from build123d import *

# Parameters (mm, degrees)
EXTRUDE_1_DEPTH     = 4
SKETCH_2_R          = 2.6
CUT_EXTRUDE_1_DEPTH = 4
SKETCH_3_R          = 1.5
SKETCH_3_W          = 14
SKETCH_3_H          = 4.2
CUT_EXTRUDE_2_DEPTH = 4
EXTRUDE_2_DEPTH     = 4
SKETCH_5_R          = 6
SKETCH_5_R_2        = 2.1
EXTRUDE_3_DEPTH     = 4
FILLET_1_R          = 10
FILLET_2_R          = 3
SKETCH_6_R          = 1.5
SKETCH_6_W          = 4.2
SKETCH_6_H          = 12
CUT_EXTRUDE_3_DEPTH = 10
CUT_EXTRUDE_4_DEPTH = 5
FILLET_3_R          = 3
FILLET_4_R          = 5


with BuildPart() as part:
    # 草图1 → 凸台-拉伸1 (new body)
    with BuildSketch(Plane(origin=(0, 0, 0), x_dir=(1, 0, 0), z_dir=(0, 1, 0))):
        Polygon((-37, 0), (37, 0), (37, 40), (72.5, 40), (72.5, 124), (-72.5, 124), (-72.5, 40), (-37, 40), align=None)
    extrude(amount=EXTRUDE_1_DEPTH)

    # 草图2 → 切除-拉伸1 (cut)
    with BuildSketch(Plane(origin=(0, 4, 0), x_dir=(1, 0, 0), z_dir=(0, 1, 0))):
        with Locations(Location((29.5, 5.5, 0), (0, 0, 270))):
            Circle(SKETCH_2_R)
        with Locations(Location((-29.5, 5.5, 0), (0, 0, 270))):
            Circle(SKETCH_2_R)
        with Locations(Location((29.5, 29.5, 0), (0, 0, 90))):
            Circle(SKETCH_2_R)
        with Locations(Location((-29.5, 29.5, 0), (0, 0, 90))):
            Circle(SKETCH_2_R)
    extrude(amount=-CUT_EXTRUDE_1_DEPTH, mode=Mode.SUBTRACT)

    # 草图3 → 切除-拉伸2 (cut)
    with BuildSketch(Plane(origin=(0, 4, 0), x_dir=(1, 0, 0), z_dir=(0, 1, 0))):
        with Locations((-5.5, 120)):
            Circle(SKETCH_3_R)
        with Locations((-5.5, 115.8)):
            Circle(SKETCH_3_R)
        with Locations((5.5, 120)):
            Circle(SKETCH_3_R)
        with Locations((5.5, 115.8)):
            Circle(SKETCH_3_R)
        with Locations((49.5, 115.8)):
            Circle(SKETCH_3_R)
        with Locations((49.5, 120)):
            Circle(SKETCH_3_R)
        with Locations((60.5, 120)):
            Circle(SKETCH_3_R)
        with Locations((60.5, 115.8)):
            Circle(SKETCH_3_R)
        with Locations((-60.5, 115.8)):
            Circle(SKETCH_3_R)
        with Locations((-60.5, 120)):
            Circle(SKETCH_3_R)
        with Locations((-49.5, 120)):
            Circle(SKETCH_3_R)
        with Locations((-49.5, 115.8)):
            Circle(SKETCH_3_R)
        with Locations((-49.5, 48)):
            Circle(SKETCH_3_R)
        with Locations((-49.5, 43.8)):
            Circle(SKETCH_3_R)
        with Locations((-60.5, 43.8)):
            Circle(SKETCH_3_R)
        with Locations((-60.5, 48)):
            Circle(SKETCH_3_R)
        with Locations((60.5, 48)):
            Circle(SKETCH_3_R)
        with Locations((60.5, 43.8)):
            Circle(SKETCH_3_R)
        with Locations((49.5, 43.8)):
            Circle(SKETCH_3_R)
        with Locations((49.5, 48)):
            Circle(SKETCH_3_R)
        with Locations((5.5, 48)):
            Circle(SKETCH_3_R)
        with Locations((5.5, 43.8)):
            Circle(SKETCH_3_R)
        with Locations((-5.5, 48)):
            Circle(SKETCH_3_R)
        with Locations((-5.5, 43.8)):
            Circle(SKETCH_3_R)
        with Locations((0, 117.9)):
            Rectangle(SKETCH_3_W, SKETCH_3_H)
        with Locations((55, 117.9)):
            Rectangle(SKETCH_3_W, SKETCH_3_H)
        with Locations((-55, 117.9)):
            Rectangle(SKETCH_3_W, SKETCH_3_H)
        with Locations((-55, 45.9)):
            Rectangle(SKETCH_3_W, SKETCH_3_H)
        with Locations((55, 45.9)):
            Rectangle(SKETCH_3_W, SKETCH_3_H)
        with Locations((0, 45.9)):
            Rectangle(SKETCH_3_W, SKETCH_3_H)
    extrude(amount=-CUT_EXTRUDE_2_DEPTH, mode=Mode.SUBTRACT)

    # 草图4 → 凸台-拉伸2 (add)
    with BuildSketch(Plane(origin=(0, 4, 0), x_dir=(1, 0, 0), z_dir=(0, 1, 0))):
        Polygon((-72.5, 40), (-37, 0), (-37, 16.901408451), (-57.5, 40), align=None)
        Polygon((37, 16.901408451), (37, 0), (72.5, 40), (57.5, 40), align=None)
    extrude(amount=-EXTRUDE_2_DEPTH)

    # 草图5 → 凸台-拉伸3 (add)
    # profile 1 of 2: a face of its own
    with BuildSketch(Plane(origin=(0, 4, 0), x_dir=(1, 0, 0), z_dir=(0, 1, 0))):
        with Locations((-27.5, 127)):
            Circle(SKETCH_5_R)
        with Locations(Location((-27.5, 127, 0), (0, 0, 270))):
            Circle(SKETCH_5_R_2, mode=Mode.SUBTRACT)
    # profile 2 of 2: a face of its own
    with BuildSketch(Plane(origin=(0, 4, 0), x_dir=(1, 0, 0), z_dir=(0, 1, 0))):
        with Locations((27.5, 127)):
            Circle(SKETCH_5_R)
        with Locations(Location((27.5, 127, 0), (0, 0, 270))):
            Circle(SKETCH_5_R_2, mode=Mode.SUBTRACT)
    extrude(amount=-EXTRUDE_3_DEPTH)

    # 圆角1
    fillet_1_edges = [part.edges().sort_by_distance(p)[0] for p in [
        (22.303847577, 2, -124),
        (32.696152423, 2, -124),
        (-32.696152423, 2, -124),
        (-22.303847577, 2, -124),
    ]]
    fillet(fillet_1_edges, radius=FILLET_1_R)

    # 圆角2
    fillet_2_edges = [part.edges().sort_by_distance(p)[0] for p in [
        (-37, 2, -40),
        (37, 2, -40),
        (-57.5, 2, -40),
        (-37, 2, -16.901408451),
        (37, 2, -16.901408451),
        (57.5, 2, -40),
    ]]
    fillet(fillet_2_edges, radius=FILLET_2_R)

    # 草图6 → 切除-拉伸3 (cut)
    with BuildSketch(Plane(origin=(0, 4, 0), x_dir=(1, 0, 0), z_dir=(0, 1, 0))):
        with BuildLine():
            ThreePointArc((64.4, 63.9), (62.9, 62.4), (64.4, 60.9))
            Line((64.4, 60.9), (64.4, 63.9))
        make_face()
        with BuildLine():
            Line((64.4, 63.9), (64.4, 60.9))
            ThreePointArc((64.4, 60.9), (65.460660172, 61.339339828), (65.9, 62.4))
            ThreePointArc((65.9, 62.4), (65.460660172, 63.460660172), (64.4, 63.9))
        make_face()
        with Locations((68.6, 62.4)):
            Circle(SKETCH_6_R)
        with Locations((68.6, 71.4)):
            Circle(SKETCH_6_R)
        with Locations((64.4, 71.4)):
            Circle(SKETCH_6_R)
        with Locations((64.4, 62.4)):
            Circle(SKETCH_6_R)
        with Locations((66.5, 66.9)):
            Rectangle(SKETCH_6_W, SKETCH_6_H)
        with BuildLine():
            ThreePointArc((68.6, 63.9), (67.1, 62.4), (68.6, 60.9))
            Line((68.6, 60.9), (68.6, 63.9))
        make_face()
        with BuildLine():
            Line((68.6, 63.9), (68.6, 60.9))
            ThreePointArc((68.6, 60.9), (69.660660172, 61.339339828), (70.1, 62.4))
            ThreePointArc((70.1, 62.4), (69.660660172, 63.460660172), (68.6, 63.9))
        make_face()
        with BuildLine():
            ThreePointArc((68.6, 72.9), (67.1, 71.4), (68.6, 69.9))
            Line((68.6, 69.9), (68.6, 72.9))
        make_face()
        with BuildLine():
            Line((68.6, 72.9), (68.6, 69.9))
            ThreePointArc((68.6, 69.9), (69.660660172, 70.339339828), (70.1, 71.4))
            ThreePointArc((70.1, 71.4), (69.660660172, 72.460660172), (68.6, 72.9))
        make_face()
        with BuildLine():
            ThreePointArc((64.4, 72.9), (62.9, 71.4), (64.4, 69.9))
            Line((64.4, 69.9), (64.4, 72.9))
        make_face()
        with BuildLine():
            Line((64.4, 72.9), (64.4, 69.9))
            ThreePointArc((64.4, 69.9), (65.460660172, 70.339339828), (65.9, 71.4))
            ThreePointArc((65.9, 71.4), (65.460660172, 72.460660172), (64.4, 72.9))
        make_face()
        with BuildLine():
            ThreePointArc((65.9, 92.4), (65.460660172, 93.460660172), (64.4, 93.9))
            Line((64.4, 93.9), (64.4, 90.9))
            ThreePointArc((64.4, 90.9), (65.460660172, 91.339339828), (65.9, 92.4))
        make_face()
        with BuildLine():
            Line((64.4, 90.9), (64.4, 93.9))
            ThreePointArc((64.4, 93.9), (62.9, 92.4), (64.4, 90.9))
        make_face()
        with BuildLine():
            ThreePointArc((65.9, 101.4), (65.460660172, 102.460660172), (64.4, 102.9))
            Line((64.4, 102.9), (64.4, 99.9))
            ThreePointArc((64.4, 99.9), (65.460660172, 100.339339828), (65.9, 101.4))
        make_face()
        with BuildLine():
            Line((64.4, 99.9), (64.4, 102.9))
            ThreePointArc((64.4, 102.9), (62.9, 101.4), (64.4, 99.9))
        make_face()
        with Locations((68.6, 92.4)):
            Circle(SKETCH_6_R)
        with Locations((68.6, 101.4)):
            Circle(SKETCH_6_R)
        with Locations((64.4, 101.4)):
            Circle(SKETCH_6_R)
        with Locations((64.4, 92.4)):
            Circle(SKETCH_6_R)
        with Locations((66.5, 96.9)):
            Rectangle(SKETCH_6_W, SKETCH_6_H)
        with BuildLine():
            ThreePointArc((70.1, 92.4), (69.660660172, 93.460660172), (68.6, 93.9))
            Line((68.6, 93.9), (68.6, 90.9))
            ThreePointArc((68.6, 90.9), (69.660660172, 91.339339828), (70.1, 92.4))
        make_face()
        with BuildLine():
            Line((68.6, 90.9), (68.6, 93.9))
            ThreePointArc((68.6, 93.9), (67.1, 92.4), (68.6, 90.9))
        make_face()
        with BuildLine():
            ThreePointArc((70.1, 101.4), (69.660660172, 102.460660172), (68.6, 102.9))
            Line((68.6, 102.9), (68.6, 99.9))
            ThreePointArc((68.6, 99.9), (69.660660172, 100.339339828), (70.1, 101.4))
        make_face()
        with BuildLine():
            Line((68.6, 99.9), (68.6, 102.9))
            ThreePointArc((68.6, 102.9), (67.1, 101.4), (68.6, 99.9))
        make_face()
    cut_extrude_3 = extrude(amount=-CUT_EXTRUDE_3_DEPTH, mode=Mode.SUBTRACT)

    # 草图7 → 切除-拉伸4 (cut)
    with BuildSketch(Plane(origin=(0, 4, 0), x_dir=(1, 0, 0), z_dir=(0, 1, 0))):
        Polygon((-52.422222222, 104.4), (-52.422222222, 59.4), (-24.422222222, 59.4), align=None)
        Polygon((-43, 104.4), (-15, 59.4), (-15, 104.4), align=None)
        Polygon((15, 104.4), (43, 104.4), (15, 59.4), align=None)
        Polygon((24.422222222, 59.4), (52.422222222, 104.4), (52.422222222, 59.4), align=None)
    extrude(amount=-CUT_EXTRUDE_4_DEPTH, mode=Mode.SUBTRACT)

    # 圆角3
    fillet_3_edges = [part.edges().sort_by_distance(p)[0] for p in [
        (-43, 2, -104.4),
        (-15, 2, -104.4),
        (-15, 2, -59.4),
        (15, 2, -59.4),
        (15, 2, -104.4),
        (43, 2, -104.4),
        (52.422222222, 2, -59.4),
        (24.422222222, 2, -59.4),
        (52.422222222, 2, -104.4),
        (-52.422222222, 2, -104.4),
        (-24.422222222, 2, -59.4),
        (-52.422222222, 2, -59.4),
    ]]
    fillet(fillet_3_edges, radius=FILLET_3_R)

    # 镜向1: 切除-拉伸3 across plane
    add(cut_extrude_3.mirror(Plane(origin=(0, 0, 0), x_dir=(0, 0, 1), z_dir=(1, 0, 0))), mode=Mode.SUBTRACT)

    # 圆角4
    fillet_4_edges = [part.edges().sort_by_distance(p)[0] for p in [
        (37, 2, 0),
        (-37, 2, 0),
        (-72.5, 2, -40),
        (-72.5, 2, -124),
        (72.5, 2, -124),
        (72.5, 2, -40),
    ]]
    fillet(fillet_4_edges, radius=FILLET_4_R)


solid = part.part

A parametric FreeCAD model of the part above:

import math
import FreeCAD as App
import Part
import Sketcher
from FreeCAD import Vector


def edges_at(feature, points):
    """Names of the edges that pass closest to the given points."""
    edges = feature.Shape.Edges
    near = lambda p: min(range(len(edges)), key=lambda i: edges[i].distToShape(Part.Vertex(*p))[0])
    return sorted({f"Edge{near(p) + 1}" for p in points})


def add_polygon(sketch, points):
    """Adds a closed chain of lines whose ends are joined by coincident constraints."""
    first, n = sketch.GeometryCount, len(points)
    for a, b in zip(points, points[1:] + points[:1]):
        sketch.addGeometry(Part.LineSegment(App.Vector(*a, 0), App.Vector(*b, 0)), False)
    for i in range(n):
        sketch.addConstraint(Sketcher.Constraint("Coincident", first + i, 2, first + (i + 1) % n, 1))

doc = App.newDocument("Part")
body = doc.addObject("PartDesign::Body", "Body")

sketch1 = body.newObject("Sketcher::SketchObject", "Sketch")
sketch1.AttachmentSupport = (doc.getObject("XZ_Plane"), [""])
sketch1.MapMode = "FlatFace"
add_polygon(sketch1, [(-37, 0), (37, 0), (37, -40), (72, -40), (72, -124), (-72, -124), (-72, -40), (-37, -40)])
sketch1.addConstraint(Sketcher.Constraint("Horizontal", 0))
sketch1.addConstraint(Sketcher.Constraint("Vertical", 1))
sketch1.addConstraint(Sketcher.Constraint("Horizontal", 2))
sketch1.addConstraint(Sketcher.Constraint("Vertical", 3))
sketch1.addConstraint(Sketcher.Constraint("Horizontal", 4))
sketch1.addConstraint(Sketcher.Constraint("Vertical", 5))
sketch1.addConstraint(Sketcher.Constraint("Horizontal", 6))
sketch1.addConstraint(Sketcher.Constraint("Vertical", 7))
sketch1.addConstraint(Sketcher.Constraint("Symmetric", 0, 2, 7, 2, -1, 1))
sketch1.addConstraint(Sketcher.Constraint("Symmetric", 2, 2, 5, 2, -2))
sketch1.addConstraint(Sketcher.Constraint("DistanceX", 0, 1, 0, 2, 74.0))
sketch1.addConstraint(Sketcher.Constraint("DistanceX", 4, 2, 4, 1, 145.0))
sketch1.addConstraint(Sketcher.Constraint("DistanceY", 1, 2, 1, 1, 40.0))
sketch1.addConstraint(Sketcher.Constraint("DistanceY", 3, 2, 3, 1, 84.0))
pad1 = body.newObject("PartDesign::Pad", "Pad")
pad1.Profile = sketch1
pad1.Length = 4
pad1.Reversed = True

sketch2 = body.newObject("Sketcher::SketchObject", "Sketch001")
sketch2.AttachmentSupport = (doc.getObject("XZ_Plane"), [""])
sketch2.MapMode = "FlatFace"
sketch2.AttachmentOffset = App.Placement(Vector(0, 0, -4), App.Rotation())
sketch2.addGeometry(Part.Circle(Vector(29.5, -5.5, 0), Vector(0, 0, 1), 2.6), False)
sketch2.addGeometry(Part.Circle(Vector(-29.5, -5.5, 0), Vector(0, 0, 1), 2.6), False)
sketch2.addGeometry(Part.Circle(Vector(29.5, -29.5, 0), Vector(0, 0, 1), 2.6), False)
sketch2.addGeometry(Part.Circle(Vector(-29.5, -29.5, 0), Vector(0, 0, 1), 2.6), False)
sketch2.addConstraint(Sketcher.Constraint("Equal", 0, 1))
sketch2.addConstraint(Sketcher.Constraint("Equal", 1, 2))
sketch2.addConstraint(Sketcher.Constraint("Equal", 2, 3))
sketch2.addConstraint(Sketcher.Constraint("Symmetric", 0, 3, 1, 3, -2))
sketch2.addConstraint(Sketcher.Constraint("Symmetric", 2, 3, 3, 3, -2))
sketch2.addConstraint(Sketcher.Constraint("Vertical", 0, 3, 2, 3))
sketch2.addConstraint(Sketcher.Constraint("Diameter", 0, 5.2))
sketch2.addConstraint(Sketcher.Constraint("DistanceX", 1, 3, 0, 3, 59.0))
sketch2.addConstraint(Sketcher.Constraint("DistanceY", 2, 3, 0, 3, 24.0))
sketch2.addConstraint(Sketcher.Constraint("DistanceY", 0, 3, -1, 1, 5.5))
pocket1 = body.newObject("PartDesign::Pocket", "Pocket")
pocket1.Profile = sketch2
pocket1.Length = 4
pocket1.Reversed = True

sketch3 = body.newObject("Sketcher::SketchObject", "Sketch002")
sketch3.AttachmentSupport = (doc.getObject("XZ_Plane"), [""])
sketch3.MapMode = "FlatFace"
sketch3.AttachmentOffset = App.Placement(Vector(0, 0, -4), App.Rotation())
sketch3.addGeometry(Part.ArcOfCircle(Part.Circle(Vector(-5.5, -120, 0), Vector(0, 0, 1), 1.5), math.radians(180), math.radians(360)), False)
sketch3.addGeometry(Part.LineSegment(Vector(-7, -120, 0), Vector(-7, -115.8, 0)), False)
sketch3.addGeometry(Part.ArcOfCircle(Part.Circle(Vector(-5.5, -115.8, 0), Vector(0, 0, 1), 1.5), math.radians(0), math.radians(180)), False)
sketch3.addGeometry(Part.LineSegment(Vector(-4, -115.8, 0), Vector(4, -115.8, 0)), False)
sketch3.addGeometry(Part.ArcOfCircle(Part.Circle(Vector(5.5, -115.8, 0), Vector(0, 0, 1), 1.5), math.radians(0), math.radians(180)), False)
sketch3.addGeometry(Part.LineSegment(Vector(7, -115.8, 0), Vector(7, -120, 0)), False)
sketch3.addGeometry(Part.ArcOfCircle(Part.Circle(Vector(5.5, -120, 0), Vector(0, 0, 1), 1.5), math.radians(180), math.radians(360)), False)
sketch3.addGeometry(Part.LineSegment(Vector(4, -120, 0), Vector(-4, -120, 0)), False)
sketch3.addGeometry(Part.ArcOfCircle(Part.Circle(Vector(49.5, -115.8, 0), Vector(0, 0, 1), 1.5), math.radians(0), math.radians(180)), False)
sketch3.addGeometry(Part.LineSegment(Vector(51, -115.8, 0), Vector(59, -115.8, 0)), False)
sketch3.addGeometry(Part.ArcOfCircle(Part.Circle(Vector(60.5, -115.8, 0), Vector(0, 0, 1), 1.5), math.radians(0), math.radians(180)), False)
sketch3.addGeometry(Part.LineSegment(Vector(62, -115.8, 0), Vector(62, -120, 0)), False)
sketch3.addGeometry(Part.ArcOfCircle(Part.Circle(Vector(60.5, -120, 0), Vector(0, 0, 1), 1.5), math.radians(180), math.radians(360)), False)
sketch3.addGeometry(Part.LineSegment(Vector(59, -120, 0), Vector(51, -120, 0)), False)
sketch3.addGeometry(Part.ArcOfCircle(Part.Circle(Vector(49.5, -120, 0), Vector(0, 0, 1), 1.5), math.radians(180), math.radians(360)), False)
sketch3.addGeometry(Part.LineSegment(Vector(48, -120, 0), Vector(48, -115.8, 0)), False)
sketch3.addGeometry(Part.ArcOfCircle(Part.Circle(Vector(-60.5, -115.8, 0), Vector(0, 0, 1), 1.5), math.radians(0), math.radians(180)), False)
sketch3.addGeometry(Part.LineSegment(Vector(-59, -115.8, 0), Vector(-51, -115.8, 0)), False)
sketch3.addGeometry(Part.ArcOfCircle(Part.Circle(Vector(-49.5, -115.8, 0), Vector(0, 0, 1), 1.5), math.radians(0), math.radians(180)), False)
sketch3.addGeometry(Part.LineSegment(Vector(-48, -115.8, 0), Vector(-48, -120, 0)), False)
sketch3.addGeometry(Part.ArcOfCircle(Part.Circle(Vector(-49.5, -120, 0), Vector(0, 0, 1), 1.5), math.radians(180), math.radians(360)), False)
sketch3.addGeometry(Part.LineSegment(Vector(-51, -120, 0), Vector(-59, -120, 0)), False)
sketch3.addGeometry(Part.ArcOfCircle(Part.Circle(Vector(-60.5, -120, 0), Vector(0, 0, 1), 1.5), math.radians(180), math.radians(360)), False)
sketch3.addGeometry(Part.LineSegment(Vector(-62, -120, 0), Vector(-62, -115.8, 0)), False)
sketch3.addGeometry(Part.ArcOfCircle(Part.Circle(Vector(-49.5, -48, 0), Vector(0, 0, 1), 1.5), math.radians(180), math.radians(360)), False)
sketch3.addGeometry(Part.LineSegment(Vector(-51, -48, 0), Vector(-59, -48, 0)), False)
sketch3.addGeometry(Part.ArcOfCircle(Part.Circle(Vector(-60.5, -48, 0), Vector(0, 0, 1), 1.5), math.radians(180), math.radians(360)), False)
sketch3.addGeometry(Part.LineSegment(Vector(-62, -48, 0), Vector(-62, -43.8, 0)), False)
sketch3.addGeometry(Part.ArcOfCircle(Part.Circle(Vector(-60.5, -43.8, 0), Vector(0, 0, 1), 1.5), math.radians(0), math.radians(180)), False)
sketch3.addGeometry(Part.LineSegment(Vector(-59, -43.8, 0), Vector(-51, -43.8, 0)), False)
sketch3.addGeometry(Part.ArcOfCircle(Part.Circle(Vector(-49.5, -43.8, 0), Vector(0, 0, 1), 1.5), math.radians(0), math.radians(180)), False)
sketch3.addGeometry(Part.LineSegment(Vector(-48, -43.8, 0), Vector(-48, -48, 0)), False)
sketch3.addGeometry(Part.ArcOfCircle(Part.Circle(Vector(60.5, -48, 0), Vector(0, 0, 1), 1.5), math.radians(180), math.radians(360)), False)
sketch3.addGeometry(Part.LineSegment(Vector(59, -48, 0), Vector(51, -48, 0)), False)
sketch3.addGeometry(Part.ArcOfCircle(Part.Circle(Vector(49.5, -48, 0), Vector(0, 0, 1), 1.5), math.radians(180), math.radians(360)), False)
sketch3.addGeometry(Part.LineSegment(Vector(48, -48, 0), Vector(48, -43.8, 0)), False)
sketch3.addGeometry(Part.ArcOfCircle(Part.Circle(Vector(49.5, -43.8, 0), Vector(0, 0, 1), 1.5), math.radians(0), math.radians(180)), False)
sketch3.addGeometry(Part.LineSegment(Vector(51, -43.8, 0), Vector(59, -43.8, 0)), False)
sketch3.addGeometry(Part.ArcOfCircle(Part.Circle(Vector(60.5, -43.8, 0), Vector(0, 0, 1), 1.5), math.radians(0), math.radians(180)), False)
sketch3.addGeometry(Part.LineSegment(Vector(62, -43.8, 0), Vector(62, -48, 0)), False)
sketch3.addGeometry(Part.ArcOfCircle(Part.Circle(Vector(5.5, -48, 0), Vector(0, 0, 1), 1.5), math.radians(180), math.radians(360)), False)
sketch3.addGeometry(Part.LineSegment(Vector(4, -48, 0), Vector(-4, -48, 0)), False)
sketch3.addGeometry(Part.ArcOfCircle(Part.Circle(Vector(-5.5, -48, 0), Vector(0, 0, 1), 1.5), math.radians(180), math.radians(360)), False)
sketch3.addGeometry(Part.LineSegment(Vector(-7, -48, 0), Vector(-7, -43.8, 0)), False)
sketch3.addGeometry(Part.ArcOfCircle(Part.Circle(Vector(-5.5, -43.8, 0), Vector(0, 0, 1), 1.5), math.radians(0), math.radians(180)), False)
sketch3.addGeometry(Part.LineSegment(Vector(-4, -43.8, 0), Vector(4, -43.8, 0)), False)
sketch3.addGeometry(Part.ArcOfCircle(Part.Circle(Vector(5.5, -43.8, 0), Vector(0, 0, 1), 1.5), math.radians(0), math.radians(180)), False)
sketch3.addGeometry(Part.LineSegment(Vector(7, -43.8, 0), Vector(7, -48, 0)), False)
sketch3.addConstraint(Sketcher.Constraint("Tangent", 0, 1, 1, 1))
sketch3.addConstraint(Sketcher.Constraint("Tangent", 1, 2, 2, 2))
sketch3.addConstraint(Sketcher.Constraint("Coincident", 2, 1, 3, 1))
sketch3.addConstraint(Sketcher.Constraint("Coincident", 3, 2, 4, 2))
sketch3.addConstraint(Sketcher.Constraint("Tangent", 4, 1, 5, 1))
sketch3.addConstraint(Sketcher.Constraint("Tangent", 5, 2, 6, 2))
sketch3.addConstraint(Sketcher.Constraint("Coincident", 6, 1, 7, 1))
sketch3.addConstraint(Sketcher.Constraint("Coincident", 7, 2, 0, 2))
sketch3.addConstraint(Sketcher.Constraint("Coincident", 8, 1, 9, 1))
sketch3.addConstraint(Sketcher.Constraint("Coincident", 9, 2, 10, 2))
sketch3.addConstraint(Sketcher.Constraint("Tangent", 10, 1, 11, 1))
sketch3.addConstraint(Sketcher.Constraint("Tangent", 11, 2, 12, 2))
sketch3.addConstraint(Sketcher.Constraint("Coincident", 12, 1, 13, 1))
sketch3.addConstraint(Sketcher.Constraint("Coincident", 13, 2, 14, 2))
sketch3.addConstraint(Sketcher.Constraint("Tangent", 14, 1, 15, 1))
sketch3.addConstraint(Sketcher.Constraint("Tangent", 15, 2, 8, 2))
sketch3.addConstraint(Sketcher.Constraint("Coincident", 16, 1, 17, 1))
sketch3.addConstraint(Sketcher.Constraint("Coincident", 17, 2, 18, 2))
sketch3.addConstraint(Sketcher.Constraint("Tangent", 18, 1, 19, 1))
sketch3.addConstraint(Sketcher.Constraint("Tangent", 19, 2, 20, 2))
sketch3.addConstraint(Sketcher.Constraint("Coincident", 20, 1, 21, 1))
sketch3.addConstraint(Sketcher.Constraint("Coincident", 21, 2, 22, 2))
sketch3.addConstraint(Sketcher.Constraint("Tangent", 22, 1, 23, 1))
sketch3.addConstraint(Sketcher.Constraint("Tangent", 23, 2, 16, 2))
sketch3.addConstraint(Sketcher.Constraint("Coincident", 24, 1, 25, 1))
sketch3.addConstraint(Sketcher.Constraint("Coincident", 25, 2, 26, 2))
sketch3.addConstraint(Sketcher.Constraint("Tangent", 26, 1, 27, 1))
sketch3.addConstraint(Sketcher.Constraint("Tangent", 27, 2, 28, 2))
sketch3.addConstraint(Sketcher.Constraint("Coincident", 28, 1, 29, 1))
sketch3.addConstraint(Sketcher.Constraint("Coincident", 29, 2, 30, 2))
sketch3.addConstraint(Sketcher.Constraint("Tangent", 30, 1, 31, 1))
sketch3.addConstraint(Sketcher.Constraint("Tangent", 31, 2, 24, 2))
sketch3.addConstraint(Sketcher.Constraint("Coincident", 32, 1, 33, 1))
sketch3.addConstraint(Sketcher.Constraint("Coincident", 33, 2, 34, 2))
sketch3.addConstraint(Sketcher.Constraint("Tangent", 34, 1, 35, 1))
sketch3.addConstraint(Sketcher.Constraint("Tangent", 35, 2, 36, 2))
sketch3.addConstraint(Sketcher.Constraint("Coincident", 36, 1, 37, 1))
sketch3.addConstraint(Sketcher.Constraint("Coincident", 37, 2, 38, 2))
sketch3.addConstraint(Sketcher.Constraint("Tangent", 38, 1, 39, 1))
sketch3.addConstraint(Sketcher.Constraint("Tangent", 39, 2, 32, 2))
sketch3.addConstraint(Sketcher.Constraint("Coincident", 40, 1, 41, 1))
sketch3.addConstraint(Sketcher.Constraint("Coincident", 41, 2, 42, 2))
sketch3.addConstraint(Sketcher.Constraint("Tangent", 42, 1, 43, 1))
sketch3.addConstraint(Sketcher.Constraint("Tangent", 43, 2, 44, 2))
sketch3.addConstraint(Sketcher.Constraint("Coincident", 44, 1, 45, 1))
sketch3.addConstraint(Sketcher.Constraint("Coincident", 45, 2, 46, 2))
sketch3.addConstraint(Sketcher.Constraint("Tangent", 46, 1, 47, 1))
sketch3.addConstraint(Sketcher.Constraint("Tangent", 47, 2, 40, 2))
sketch3.addConstraint(Sketcher.Constraint("Vertical", 1))
sketch3.addConstraint(Sketcher.Constraint("Horizontal", 3))
sketch3.addConstraint(Sketcher.Constraint("Vertical", 5))
sketch3.addConstraint(Sketcher.Constraint("Horizontal", 7))
sketch3.addConstraint(Sketcher.Constraint("Horizontal", 9))
sketch3.addConstraint(Sketcher.Constraint("Vertical", 11))
sketch3.addConstraint(Sketcher.Constraint("Horizontal", 13))
sketch3.addConstraint(Sketcher.Constraint("Vertical", 15))
sketch3.addConstraint(Sketcher.Constraint("Horizontal", 17))
sketch3.addConstraint(Sketcher.Constraint("Vertical", 19))
sketch3.addConstraint(Sketcher.Constraint("Horizontal", 21))
sketch3.addConstraint(Sketcher.Constraint("Vertical", 23))
sketch3.addConstraint(Sketcher.Constraint("Horizontal", 25))
sketch3.addConstraint(Sketcher.Constraint("Vertical", 27))
sketch3.addConstraint(Sketcher.Constraint("Horizontal", 29))
sketch3.addConstraint(Sketcher.Constraint("Vertical", 31))
sketch3.addConstraint(Sketcher.Constraint("Horizontal", 33))
sketch3.addConstraint(Sketcher.Constraint("Vertical", 35))
sketch3.addConstraint(Sketcher.Constraint("Horizontal", 37))
sketch3.addConstraint(Sketcher.Constraint("Vertical", 39))
sketch3.addConstraint(Sketcher.Constraint("Horizontal", 41))
sketch3.addConstraint(Sketcher.Constraint("Vertical", 43))
sketch3.addConstraint(Sketcher.Constraint("Horizontal", 45))
sketch3.addConstraint(Sketcher.Constraint("Vertical", 47))
sketch3.addConstraint(Sketcher.Constraint("Equal", 0, 2))
sketch3.addConstraint(Sketcher.Constraint("Equal", 2, 4))
sketch3.addConstraint(Sketcher.Constraint("Equal", 4, 6))
sketch3.addConstraint(Sketcher.Constraint("Equal", 6, 8))
sketch3.addConstraint(Sketcher.Constraint("Equal", 8, 10))
sketch3.addConstraint(Sketcher.Constraint("Equal", 10, 12))
sketch3.addConstraint(Sketcher.Constraint("Equal", 12, 14))
sketch3.addConstraint(Sketcher.Constraint("Equal", 14, 16))
sketch3.addConstraint(Sketcher.Constraint("Equal", 16, 18))
sketch3.addConstraint(Sketcher.Constraint("Equal", 18, 20))
sketch3.addConstraint(Sketcher.Constraint("Equal", 20, 22))
sketch3.addConstraint(Sketcher.Constraint("Equal", 22, 24))
sketch3.addConstraint(Sketcher.Constraint("Equal", 24, 26))
sketch3.addConstraint(Sketcher.Constraint("Equal", 26, 28))
sketch3.addConstraint(Sketcher.Constraint("Equal", 28, 30))
sketch3.addConstraint(Sketcher.Constraint("Equal", 30, 32))
sketch3.addConstraint(Sketcher.Constraint("Equal", 32, 34))
sketch3.addConstraint(Sketcher.Constraint("Equal", 34, 36))
sketch3.addConstraint(Sketcher.Constraint("Equal", 36, 38))
sketch3.addConstraint(Sketcher.Constraint("Equal", 38, 40))
sketch3.addConstraint(Sketcher.Constraint("Equal", 40, 42))
sketch3.addConstraint(Sketcher.Constraint("Equal", 42, 44))
sketch3.addConstraint(Sketcher.Constraint("Equal", 44, 46))
sketch3.addConstraint(Sketcher.Constraint("Symmetric", 2, 3, 4, 3, -2))
sketch3.addConstraint(Sketcher.Constraint("Symmetric", 10, 3, 16, 3, -2))
sketch3.addConstraint(Sketcher.Constraint("Symmetric", 8, 3, 18, 3, -2))
sketch3.addConstraint(Sketcher.Constraint("Symmetric", 26, 3, 32, 3, -2))
sketch3.addConstraint(Sketcher.Constraint("Symmetric", 24, 3, 34, 3, -2))
sketch3.addConstraint(Sketcher.Constraint("Symmetric", 40, 3, 42, 3, -2))
sketch3.addConstraint(Sketcher.Constraint("Horizontal", 0, 3, 6, 3))
sketch3.addConstraint(Sketcher.Constraint("Horizontal", 4, 3, 8, 3))
sketch3.addConstraint(Sketcher.Constraint("Horizontal", 8, 3, 10, 3))
sketch3.addConstraint(Sketcher.Constraint("Horizontal", 6, 3, 12, 3))
sketch3.addConstraint(Sketcher.Constraint("Horizontal", 12, 3, 14, 3))
sketch3.addConstraint(Sketcher.Constraint("Horizontal", 14, 3, 20, 3))
sketch3.addConstraint(Sketcher.Constraint("Horizontal", 20, 3, 22, 3))
sketch3.addConstraint(Sketcher.Constraint("Horizontal", 24, 3, 26, 3))
sketch3.addConstraint(Sketcher.Constraint("Horizontal", 28, 3, 30, 3))
sketch3.addConstraint(Sketcher.Constraint("Horizontal", 30, 3, 36, 3))
sketch3.addConstraint(Sketcher.Constraint("Horizontal", 36, 3, 38, 3))
sketch3.addConstraint(Sketcher.Constraint("Horizontal", 34, 3, 40, 3))
sketch3.addConstraint(Sketcher.Constraint("Horizontal", 38, 3, 44, 3))
sketch3.addConstraint(Sketcher.Constraint("Horizontal", 44, 3, 46, 3))
sketch3.addConstraint(Sketcher.Constraint("Horizontal", 1, 2, 2, 1))
sketch3.addConstraint(Sketcher.Constraint("Horizontal", 5, 2, 6, 1))
sketch3.addConstraint(Sketcher.Constraint("Horizontal", 4, 1, 8, 1))
sketch3.addConstraint(Sketcher.Constraint("Horizontal", 11, 2, 12, 1))
sketch3.addConstraint(Sketcher.Constraint("Horizontal", 15, 2, 16, 1))
sketch3.addConstraint(Sketcher.Constraint("Horizontal", 19, 2, 20, 1))
sketch3.addConstraint(Sketcher.Constraint("Horizontal", 42, 3, 24, 1))
sketch3.addConstraint(Sketcher.Constraint("Horizontal", 27, 2, 28, 1))
sketch3.addConstraint(Sketcher.Constraint("Horizontal", 31, 2, 32, 1))
sketch3.addConstraint(Sketcher.Constraint("Horizontal", 35, 2, 36, 1))
sketch3.addConstraint(Sketcher.Constraint("Horizontal", 39, 2, 40, 1))
sketch3.addConstraint(Sketcher.Constraint("Horizontal", 43, 2, 44, 1))
sketch3.addConstraint(Sketcher.Constraint("Vertical", 20, 3, 24, 3))
sketch3.addConstraint(Sketcher.Constraint("Vertical", 22, 3, 26, 3))
sketch3.addConstraint(Sketcher.Constraint("Vertical", 6, 3, 40, 3))
sketch3.addConstraint(Sketcher.Constraint("Equal", 7, 9))
sketch3.addConstraint(Sketcher.Constraint("Equal", 23, 27))
sketch3.addConstraint(Sketcher.Constraint("Radius", 0, 1.5))
sketch3.addConstraint(Sketcher.Constraint("DistanceX", 3, 1, 3, 2, 8.0))
sketch3.addConstraint(Sketcher.Constraint("DistanceY", 1, 1, 1, 2, 4.2))
sketch3.addConstraint(Sketcher.Constraint("DistanceY", 0, 3, -1, 1, 120.0))
sketch3.addConstraint(Sketcher.Constraint("DistanceY", 24, 3, -1, 1, 48.0))
sketch3.addConstraint(Sketcher.Constraint("DistanceX", -1, 1, 8, 1, 51.0))
pocket2 = body.newObject("PartDesign::Pocket", "Pocket001")
pocket2.Profile = sketch3
pocket2.Length = 4
pocket2.Reversed = True

sketch4 = body.newObject("Sketcher::SketchObject", "Sketch003")
sketch4.AttachmentSupport = (doc.getObject("XZ_Plane"), [""])
sketch4.MapMode = "FlatFace"
sketch4.AttachmentOffset = App.Placement(Vector(0, 0, -4), App.Rotation())
add_polygon(sketch4, [(-72, -40), (-37, 0), (-37, -17), (-58, -40)])
add_polygon(sketch4, [(37, -17), (37, 0), (72, -40), (58, -40)])
sketch4.addConstraint(Sketcher.Constraint("Vertical", 1))
sketch4.addConstraint(Sketcher.Constraint("Horizontal", 3))
sketch4.addConstraint(Sketcher.Constraint("Vertical", 4))
sketch4.addConstraint(Sketcher.Constraint("Horizontal", 6))
sketch4.addConstraint(Sketcher.Constraint("Symmetric", 0, 2, 4, 2, -1, 1))
sketch4.addConstraint(Sketcher.Constraint("Symmetric", 3, 2, 5, 2, -2))
sketch4.addConstraint(Sketcher.Constraint("PointOnObject", 0, 2, -1))
sketch4.addConstraint(Sketcher.Constraint("Parallel", 0, 2))
sketch4.addConstraint(Sketcher.Constraint("Parallel", 5, 7))
sketch4.addConstraint(Sketcher.Constraint("Horizontal", 1, 2, 7, 2))
sketch4.addConstraint(Sketcher.Constraint("DistanceX", 3, 2, 3, 1, 15.0))
sketch4.addConstraint(Sketcher.Constraint("DistanceX", 0, 2, -1, 1, 37.0))
sketch4.addConstraint(Sketcher.Constraint("DistanceY", 2, 2, -1, 1, 40.0))
sketch4.addConstraint(Sketcher.Constraint("DistanceX", 2, 2, 5, 2, 130.0))
pad2 = body.newObject("PartDesign::Pad", "Pad001")
pad2.Profile = sketch4
pad2.Length = 4

sketch5 = body.newObject("Sketcher::SketchObject", "Sketch004")
sketch5.AttachmentSupport = (doc.getObject("XZ_Plane"), [""])
sketch5.MapMode = "FlatFace"
sketch5.AttachmentOffset = App.Placement(Vector(0, 0, -4), App.Rotation())
sketch5.addGeometry(Part.Circle(Vector(-27.5, -127, 0), Vector(0, 0, 1), 6), False)
sketch5.addGeometry(Part.Circle(Vector(-27.5, -127, 0), Vector(0, 0, 1), 2.1), False)
sketch5.addGeometry(Part.Circle(Vector(27.5, -127, 0), Vector(0, 0, 1), 6), False)
sketch5.addGeometry(Part.Circle(Vector(27.5, -127, 0), Vector(0, 0, 1), 2.1), False)
sketch5.addConstraint(Sketcher.Constraint("Coincident", 1, 3, 0, 3))
sketch5.addConstraint(Sketcher.Constraint("Coincident", 3, 3, 2, 3))
sketch5.addConstraint(Sketcher.Constraint("Equal", 0, 2))
sketch5.addConstraint(Sketcher.Constraint("Equal", 1, 3))
sketch5.addConstraint(Sketcher.Constraint("Symmetric", 0, 3, 2, 3, -2))
sketch5.addConstraint(Sketcher.Constraint("Diameter", 0, 12.0))
sketch5.addConstraint(Sketcher.Constraint("Diameter", 1, 4.2))
sketch5.addConstraint(Sketcher.Constraint("DistanceY", 0, 3, -1, 1, 127.0))
sketch5.addConstraint(Sketcher.Constraint("DistanceX", 0, 3, 2, 3, 55.0))
pad3 = body.newObject("PartDesign::Pad", "Pad002")
pad3.Profile = sketch5
pad3.Length = 4
doc.recompute()

fillet = body.newObject("PartDesign::Fillet", "Fillet")
fillet.Base = (pad3, edges_at(pad3, [
    (22.304, 2, -124),
    (32.696, 2, -124),
    (-32.696, 2, -124),
    (-22.304, 2, -124),
]))
fillet.Radius = 10
doc.recompute()

fillet2 = body.newObject("PartDesign::Fillet", "Fillet001")
fillet2.Base = (fillet, edges_at(fillet, [
    (-37, 2, -40),
    (37, 2, -40),
    (-57.5, 2, -40),
    (-37, 2, -16.901),
    (37, 2, -16.901),
    (57.5, 2, -40),
]))
fillet2.Radius = 3

sketch6 = body.newObject("Sketcher::SketchObject", "Sketch005")
sketch6.AttachmentSupport = (doc.getObject("XZ_Plane"), [""])
sketch6.MapMode = "FlatFace"
sketch6.AttachmentOffset = App.Placement(Vector(0, 0, -4), App.Rotation())
sketch6.addGeometry(Part.LineSegment(Vector(64.4, -69.9, 0), Vector(64.4, -63.9, 0)), False)
sketch6.addGeometry(Part.ArcOfCircle(Part.Circle(Vector(64.4, -62.4, 0), Vector(0, 0, 1), 1.5), math.radians(90), math.radians(270)), False)
sketch6.addGeometry(Part.LineSegment(Vector(64.4, -60.9, 0), Vector(68.6, -60.9, 0)), False)
sketch6.addGeometry(Part.ArcOfCircle(Part.Circle(Vector(68.6, -62.4, 0), Vector(0, 0, 1), 1.5), math.radians(-90), math.radians(90)), False)
sketch6.addGeometry(Part.LineSegment(Vector(68.6, -63.9, 0), Vector(68.6, -69.9, 0)), False)
sketch6.addGeometry(Part.ArcOfCircle(Part.Circle(Vector(68.6, -71.4, 0), Vector(0, 0, 1), 1.5), math.radians(-90), math.radians(90)), False)
sketch6.addGeometry(Part.LineSegment(Vector(68.6, -72.9, 0), Vector(64.4, -72.9, 0)), False)
sketch6.addGeometry(Part.ArcOfCircle(Part.Circle(Vector(64.4, -71.4, 0), Vector(0, 0, 1), 1.5), math.radians(90), math.radians(270)), False)
sketch6.addGeometry(Part.LineSegment(Vector(64.4, -99.9, 0), Vector(64.4, -93.9, 0)), False)
sketch6.addGeometry(Part.ArcOfCircle(Part.Circle(Vector(64.4, -92.4, 0), Vector(0, 0, 1), 1.5), math.radians(90), math.radians(270)), False)
sketch6.addGeometry(Part.LineSegment(Vector(64.4, -90.9, 0), Vector(68.6, -90.9, 0)), False)
sketch6.addGeometry(Part.ArcOfCircle(Part.Circle(Vector(68.6, -92.4, 0), Vector(0, 0, 1), 1.5), math.radians(-90), math.radians(90)), False)
sketch6.addGeometry(Part.LineSegment(Vector(68.6, -93.9, 0), Vector(68.6, -99.9, 0)), False)
sketch6.addGeometry(Part.ArcOfCircle(Part.Circle(Vector(68.6, -101.4, 0), Vector(0, 0, 1), 1.5), math.radians(-90), math.radians(90)), False)
sketch6.addGeometry(Part.LineSegment(Vector(68.6, -102.9, 0), Vector(64.4, -102.9, 0)), False)
sketch6.addGeometry(Part.ArcOfCircle(Part.Circle(Vector(64.4, -101.4, 0), Vector(0, 0, 1), 1.5), math.radians(90), math.radians(270)), False)
sketch6.addConstraint(Sketcher.Constraint("Coincident", 0, 2, 1, 2))
sketch6.addConstraint(Sketcher.Constraint("Tangent", 1, 1, 2, 1))
sketch6.addConstraint(Sketcher.Constraint("Tangent", 2, 2, 3, 2))
sketch6.addConstraint(Sketcher.Constraint("Coincident", 3, 1, 4, 1))
sketch6.addConstraint(Sketcher.Constraint("Coincident", 4, 2, 5, 2))
sketch6.addConstraint(Sketcher.Constraint("Tangent", 5, 1, 6, 1))
sketch6.addConstraint(Sketcher.Constraint("Tangent", 6, 2, 7, 2))
sketch6.addConstraint(Sketcher.Constraint("Coincident", 7, 1, 0, 1))
sketch6.addConstraint(Sketcher.Constraint("Coincident", 8, 2, 9, 2))
sketch6.addConstraint(Sketcher.Constraint("Tangent", 9, 1, 10, 1))
sketch6.addConstraint(Sketcher.Constraint("Tangent", 10, 2, 11, 2))
sketch6.addConstraint(Sketcher.Constraint("Coincident", 11, 1, 12, 1))
sketch6.addConstraint(Sketcher.Constraint("Coincident", 12, 2, 13, 2))
sketch6.addConstraint(Sketcher.Constraint("Tangent", 13, 1, 14, 1))
sketch6.addConstraint(Sketcher.Constraint("Tangent", 14, 2, 15, 2))
sketch6.addConstraint(Sketcher.Constraint("Coincident", 15, 1, 8, 1))
sketch6.addConstraint(Sketcher.Constraint("Vertical", 0))
sketch6.addConstraint(Sketcher.Constraint("Horizontal", 2))
sketch6.addConstraint(Sketcher.Constraint("Vertical", 4))
sketch6.addConstraint(Sketcher.Constraint("Horizontal", 6))
sketch6.addConstraint(Sketcher.Constraint("Vertical", 8))
sketch6.addConstraint(Sketcher.Constraint("Horizontal", 10))
sketch6.addConstraint(Sketcher.Constraint("Vertical", 12))
sketch6.addConstraint(Sketcher.Constraint("Horizontal", 14))
sketch6.addConstraint(Sketcher.Constraint("Equal", 1, 3))
sketch6.addConstraint(Sketcher.Constraint("Equal", 3, 5))
sketch6.addConstraint(Sketcher.Constraint("Equal", 5, 7))
sketch6.addConstraint(Sketcher.Constraint("Equal", 7, 9))
sketch6.addConstraint(Sketcher.Constraint("Equal", 9, 11))
sketch6.addConstraint(Sketcher.Constraint("Equal", 11, 13))
sketch6.addConstraint(Sketcher.Constraint("Equal", 13, 15))
sketch6.addConstraint(Sketcher.Constraint("Vertical", 3, 3, 5, 3))
sketch6.addConstraint(Sketcher.Constraint("Vertical", 1, 3, 7, 3))
sketch6.addConstraint(Sketcher.Constraint("Vertical", 7, 3, 9, 3))
sketch6.addConstraint(Sketcher.Constraint("Vertical", 5, 3, 11, 3))
sketch6.addConstraint(Sketcher.Constraint("Vertical", 11, 3, 13, 3))
sketch6.addConstraint(Sketcher.Constraint("Vertical", 9, 3, 15, 3))
sketch6.addConstraint(Sketcher.Constraint("Vertical", 15, 3, 0, 2))
sketch6.addConstraint(Sketcher.Constraint("Vertical", 2, 2, 3, 1))
sketch6.addConstraint(Sketcher.Constraint("Vertical", 7, 1, 8, 2))
sketch6.addConstraint(Sketcher.Constraint("Vertical", 10, 2, 11, 1))
sketch6.addConstraint(Sketcher.Constraint("Equal", 4, 8))
sketch6.addConstraint(Sketcher.Constraint("Radius", 1, 1.5))
sketch6.addConstraint(Sketcher.Constraint("DistanceY", 0, 1, 0, 2, 6.0))
sketch6.addConstraint(Sketcher.Constraint("DistanceX", 2, 1, 2, 2, 4.2))
sketch6.addConstraint(Sketcher.Constraint("DistanceY", 9, 3, 7, 3, 21.0))
sketch6.addConstraint(Sketcher.Constraint("DistanceX", -1, 1, 1, 3, 64.4))
sketch6.addConstraint(Sketcher.Constraint("DistanceY", 1, 3, -1, 1, 62.4))
pocket3 = body.newObject("PartDesign::Pocket", "Pocket002")
pocket3.Profile = sketch6
pocket3.Length = 10
pocket3.Reversed = True

sketch7 = body.newObject("Sketcher::SketchObject", "Sketch006")
sketch7.AttachmentSupport = (doc.getObject("XZ_Plane"), [""])
sketch7.MapMode = "FlatFace"
sketch7.AttachmentOffset = App.Placement(Vector(0, 0, -4), App.Rotation())
add_polygon(sketch7, [(-52, -104), (-52, -59), (-24, -59)])
add_polygon(sketch7, [(-43, -104), (-15, -59), (-15, -104)])
add_polygon(sketch7, [(43, -104), (15, -104), (15, -59)])
add_polygon(sketch7, [(52, -104), (24, -59), (52, -59)])
sketch7.addConstraint(Sketcher.Constraint("Vertical", 0))
sketch7.addConstraint(Sketcher.Constraint("Horizontal", 1))
sketch7.addConstraint(Sketcher.Constraint("Vertical", 4))
sketch7.addConstraint(Sketcher.Constraint("Horizontal", 5))
sketch7.addConstraint(Sketcher.Constraint("Horizontal", 6))
sketch7.addConstraint(Sketcher.Constraint("Vertical", 7))
sketch7.addConstraint(Sketcher.Constraint("Horizontal", 10))
sketch7.addConstraint(Sketcher.Constraint("Vertical", 11))
sketch7.addConstraint(Sketcher.Constraint("Symmetric", 4, 2, 6, 2, -2))
sketch7.addConstraint(Sketcher.Constraint("Symmetric", 1, 2, 9, 2, -2))
sketch7.addConstraint(Sketcher.Constraint("Symmetric", 2, 2, 11, 2, -2))
sketch7.addConstraint(Sketcher.Constraint("Parallel", 2, 3))
sketch7.addConstraint(Sketcher.Constraint("Parallel", 8, 9))
sketch7.addConstraint(Sketcher.Constraint("Horizontal", 1, 2, 3, 2))
sketch7.addConstraint(Sketcher.Constraint("Horizontal", 2, 2, 4, 2))
sketch7.addConstraint(Sketcher.Constraint("Horizontal", 3, 2, 7, 2))
sketch7.addConstraint(Sketcher.Constraint("DistanceX", 1, 1, 1, 2, 28.0))
sketch7.addConstraint(Sketcher.Constraint("DistanceY", 0, 1, 0, 2, 45.0))
sketch7.addConstraint(Sketcher.Constraint("DistanceX", 3, 2, -1, 1, 15.0))
sketch7.addConstraint(Sketcher.Constraint("DistanceY", 0, 2, -1, 1, 59.4))
sketch7.addConstraint(Sketcher.Constraint("DistanceX", 0, 2, -1, 1, 52.422222))
pocket4 = body.newObject("PartDesign::Pocket", "Pocket003")
pocket4.Profile = sketch7
pocket4.Length = 5
pocket4.Reversed = True
doc.recompute()

fillet3 = body.newObject("PartDesign::Fillet", "Fillet002")
fillet3.Base = (pocket4, edges_at(pocket4, [
    (-43, 2, -104.4),
    (-15, 2, -104.4),
    (-15, 2, -59.4),
    (15, 2, -59.4),
    (15, 2, -104.4),
    (43, 2, -104.4),
    (52.422, 2, -59.4),
    (24.422, 2, -59.4),
    (52.422, 2, -104.4),
    (-52.422, 2, -104.4),
    (-24.422, 2, -59.4),
    (-52.422, 2, -59.4),
]))
fillet3.Radius = 3
doc.recompute()

mirrored = body.newObject("PartDesign::Mirrored", "Mirrored")
mirrored.Originals = [pocket3]
mirrored.MirrorPlane = (doc.getObject("YZ_Plane"), [""])
body.Tip = mirrored
doc.recompute()

fillet4 = body.newObject("PartDesign::Fillet", "Fillet003")
fillet4.Base = (mirrored, edges_at(mirrored, [
    (37, 2, 0),
    (-37, 2, 0),
    (-72.5, 2, -40),
    (-72.5, 2, -124),
    (72.5, 2, -124),
    (72.5, 2, -40),
]))
fillet4.Radius = 5

doc.recompute()
